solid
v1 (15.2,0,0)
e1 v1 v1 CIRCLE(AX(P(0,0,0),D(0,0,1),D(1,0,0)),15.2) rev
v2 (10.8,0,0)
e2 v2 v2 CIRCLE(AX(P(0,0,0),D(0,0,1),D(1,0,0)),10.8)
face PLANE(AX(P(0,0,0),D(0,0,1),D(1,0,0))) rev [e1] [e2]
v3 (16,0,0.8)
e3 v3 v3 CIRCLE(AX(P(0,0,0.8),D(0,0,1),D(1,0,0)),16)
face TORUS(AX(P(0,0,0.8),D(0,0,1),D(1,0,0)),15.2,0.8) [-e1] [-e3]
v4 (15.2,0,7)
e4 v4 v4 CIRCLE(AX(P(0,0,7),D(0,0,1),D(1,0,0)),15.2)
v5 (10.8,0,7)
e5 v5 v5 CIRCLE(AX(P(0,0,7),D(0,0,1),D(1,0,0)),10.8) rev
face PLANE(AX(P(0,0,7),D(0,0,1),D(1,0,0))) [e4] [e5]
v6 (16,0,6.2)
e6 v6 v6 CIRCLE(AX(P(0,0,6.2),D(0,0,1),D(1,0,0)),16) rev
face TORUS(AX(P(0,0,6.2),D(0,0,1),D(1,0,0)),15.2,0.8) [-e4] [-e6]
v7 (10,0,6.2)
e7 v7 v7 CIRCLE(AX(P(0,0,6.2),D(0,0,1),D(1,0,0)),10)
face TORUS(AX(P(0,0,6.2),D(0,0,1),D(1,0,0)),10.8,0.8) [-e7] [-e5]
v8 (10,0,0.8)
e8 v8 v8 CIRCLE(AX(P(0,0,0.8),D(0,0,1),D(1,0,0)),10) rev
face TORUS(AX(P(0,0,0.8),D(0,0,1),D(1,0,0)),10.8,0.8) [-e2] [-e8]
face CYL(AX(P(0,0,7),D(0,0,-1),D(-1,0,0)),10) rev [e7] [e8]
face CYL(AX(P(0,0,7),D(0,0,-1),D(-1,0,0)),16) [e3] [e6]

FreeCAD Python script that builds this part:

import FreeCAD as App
import Part
import Sketcher
from FreeCAD import Vector
Q = App.Units.Quantity


def edges_at(feature, points):
    """Names of the edges that pass closest to the given points."""
    edges = feature.Shape.Edges
    near = lambda p: min(range(len(edges)), key=lambda i: edges[i].distToShape(Part.Vertex(*p))[0])
    return sorted({f"Edge{near(p) + 1}" for p in points})

doc = App.newDocument("Part")
body = doc.addObject("PartDesign::Body", "Body")

sketch1 = body.newObject("Sketcher::SketchObject", "Sketch")
sketch1.AttachmentSupport = (doc.getObject("XY_Plane"), [""])
sketch1.MapMode = "FlatFace"
sketch1.addGeometry(Part.Circle(Vector(0, 0, 0), Vector(0, 0, 1), 16), False)
sketch1.addGeometry(Part.Circle(Vector(0, 0, 0), Vector(0, 0, 1), 10), False)
sketch1.addConstraint(Sketcher.Constraint("Coincident", 0, 3, -1, 1))
sketch1.addConstraint(Sketcher.Constraint("Coincident", 1, 3, -1, 1))
sketch1.addConstraint(Sketcher.Constraint("Diameter", 0, Q("32 mm")))
sketch1.addConstraint(Sketcher.Constraint("Diameter", 1, Q("20 mm")))
pad1 = body.newObject("PartDesign::Pad", "Pad")
pad1.Profile = sketch1
pad1.Length = 7
doc.recompute()

fillet = body.newObject("PartDesign::Fillet", "Fillet")
fillet.Base = (pad1, edges_at(pad1, [
    (-16, 0, 0),
    (-16, 0, 7),
    (-10, 0, 0),
    (-10, 0, 7),
]))
fillet.Radius = 0.8

doc.recompute()
